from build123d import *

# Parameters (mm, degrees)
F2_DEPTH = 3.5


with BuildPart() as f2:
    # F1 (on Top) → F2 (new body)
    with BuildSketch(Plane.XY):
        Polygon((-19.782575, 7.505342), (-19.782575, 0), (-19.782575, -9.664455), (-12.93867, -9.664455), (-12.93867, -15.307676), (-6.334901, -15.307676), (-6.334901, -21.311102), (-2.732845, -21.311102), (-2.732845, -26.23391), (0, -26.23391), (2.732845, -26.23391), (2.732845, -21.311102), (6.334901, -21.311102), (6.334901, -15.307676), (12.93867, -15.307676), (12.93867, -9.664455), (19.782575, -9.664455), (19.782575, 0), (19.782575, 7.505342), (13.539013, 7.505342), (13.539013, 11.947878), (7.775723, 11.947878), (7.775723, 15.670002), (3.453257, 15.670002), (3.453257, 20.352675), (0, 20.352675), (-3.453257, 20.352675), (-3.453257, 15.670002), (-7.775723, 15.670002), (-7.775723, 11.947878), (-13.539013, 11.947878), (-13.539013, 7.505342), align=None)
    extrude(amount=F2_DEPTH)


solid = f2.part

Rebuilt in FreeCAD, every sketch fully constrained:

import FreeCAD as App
import Part
import Sketcher
from FreeCAD import Vector
Q = App.Units.Quantity


def add_polygon(sketch, points):
    """Adds a closed chain of lines whose ends are joined by coincident constraints."""
    first, n = sketch.GeometryCount, len(points)
    for a, b in zip(points, points[1:] + points[:1]):
        sketch.addGeometry(Part.LineSegment(App.Vector(*a, 0), App.Vector(*b, 0)), False)
    for i in range(n):
        sketch.addConstraint(Sketcher.Constraint("Coincident", first + i, 2, first + (i + 1) % n, 1))

doc = App.newDocument("Part")
body = doc.addObject("PartDesign::Body", "Body")

sketch1 = body.newObject("Sketcher::SketchObject", "Sketch")
sketch1.AttachmentSupport = (doc.getObject("XY_Plane"), [""])
sketch1.MapMode = "FlatFace"
add_polygon(sketch1, [(-19.8, 7.5), (-19.8, -9.7), (-12.9, -9.7), (-12.9, -15.3), (-6.3, -15.3), (-6.3, -21.3), (-2.7, -21.3), (-2.7, -26.2), (2.7, -26.2), (2.7, -21.3), (6.3, -21.3), (6.3, -15.3), (12.9, -15.3), (12.9, -9.7), (19.8, -9.7), (19.8, 7.5), (13.5, 7.5), (13.5, 11.9), (7.8, 11.9), (7.8, 15.7), (3.5, 15.7), (3.5, 20.4), (-3.5, 20.4), (-3.5, 15.7), (-7.8, 15.7), (-7.8, 11.9), (-13.5, 11.9), (-13.5, 7.5)])
sketch1.addConstraint(Sketcher.Constraint("Vertical", 0))
sketch1.addConstraint(Sketcher.Constraint("Horizontal", 1))
sketch1.addConstraint(Sketcher.Constraint("Vertical", 2))
sketch1.addConstraint(Sketcher.Constraint("Horizontal", 3))
sketch1.addConstraint(Sketcher.Constraint("Vertical", 4))
sketch1.addConstraint(Sketcher.Constraint("Horizontal", 5))
sketch1.addConstraint(Sketcher.Constraint("Vertical", 6))
sketch1.addConstraint(Sketcher.Constraint("Horizontal", 7))
sketch1.addConstraint(Sketcher.Constraint("Vertical", 8))
sketch1.addConstraint(Sketcher.Constraint("Horizontal", 9))
sketch1.addConstraint(Sketcher.Constraint("Vertical", 10))
sketch1.addConstraint(Sketcher.Constraint("Horizontal", 11))
sketch1.addConstraint(Sketcher.Constraint("Vertical", 12))
sketch1.addConstraint(Sketcher.Constraint("Horizontal", 13))
sketch1.addConstraint(Sketcher.Constraint("Vertical", 14))
sketch1.addConstraint(Sketcher.Constraint("Horizontal", 15))
sketch1.addConstraint(Sketcher.Constraint("Vertical", 16))
sketch1.addConstraint(Sketcher.Constraint("Horizontal", 17))
sketch1.addConstraint(Sketcher.Constraint("Vertical", 18))
sketch1.addConstraint(Sketcher.Constraint("Horizontal", 19))
sketch1.addConstraint(Sketcher.Constraint("Vertical", 20))
sketch1.addConstraint(Sketcher.Constraint("Horizontal", 21))
sketch1.addConstraint(Sketcher.Constraint("Vertical", 22))
sketch1.addConstraint(Sketcher.Constraint("Horizontal", 23))
sketch1.addConstraint(Sketcher.Constraint("Vertical", 24))
sketch1.addConstraint(Sketcher.Constraint("Horizontal", 25))
sketch1.addConstraint(Sketcher.Constraint("Vertical", 26))
sketch1.addConstraint(Sketcher.Constraint("Horizontal", 27))
sketch1.addConstraint(Sketcher.Constraint("Symmetric", 5, 2, 8, 2, -2))
sketch1.addConstraint(Sketcher.Constraint("Symmetric", 3, 2, 10, 2, -2))
sketch1.addConstraint(Sketcher.Constraint("Symmetric", 1, 2, 12, 2, -2))
sketch1.addConstraint(Sketcher.Constraint("Symmetric", 19, 2, 22, 2, -2))
sketch1.addConstraint(Sketcher.Constraint("Symmetric", 17, 2, 24, 2, -2))
sketch1.addConstraint(Sketcher.Constraint("Symmetric", 15, 2, 26, 2, -2))
sketch1.addConstraint(Sketcher.Constraint("Equal", 1, 13))
sketch1.addConstraint(Sketcher.Constraint("DistanceX", 3, 1, 3, 2, Q("6.603769 mm")))
sketch1.addConstraint(Sketcher.Constraint("DistanceX", 7, 1, 7, 2, Q("5.46569 mm")))
sketch1.addConstraint(Sketcher.Constraint("DistanceX", 17, 2, 17, 1, Q("5.76329 mm")))
sketch1.addConstraint(Sketcher.Constraint("DistanceY", 2, 2, 2, 1, Q("5.643221 mm")))
sketch1.addConstraint(Sketcher.Constraint("DistanceX", 3, 2, -1, 1, Q("6.334901 mm")))
sketch1.addConstraint(Sketcher.Constraint("DistanceX", 1, 1, 1, 2, Q("6.843905 mm")))
sketch1.addConstraint(Sketcher.Constraint("DistanceX", 15, 2, 15, 1, Q("6.243562 mm")))
sketch1.addConstraint(Sketcher.Constraint("DistanceX", 19, 2, 19, 1, Q("4.322466 mm")))
sketch1.addConstraint(Sketcher.Constraint("DistanceY", 0, 2, 0, 1, Q("17.169797 mm")))
sketch1.addConstraint(Sketcher.Constraint("DistanceY", 4, 2, 4, 1, Q("6.003426 mm")))
sketch1.addConstraint(Sketcher.Constraint("DistanceY", 6, 2, 6, 1, Q("4.922808 mm")))
sketch1.addConstraint(Sketcher.Constraint("DistanceY", 16, 1, 16, 2, Q("4.442536 mm")))
sketch1.addConstraint(Sketcher.Constraint("DistanceY", 18, 1, 18, 2, Q("3.722124 mm")))
sketch1.addConstraint(Sketcher.Constraint("DistanceY", 20, 1, 20, 2, Q("4.682673 mm")))
sketch1.addConstraint(Sketcher.Constraint("DistanceY", 6, 2, -1, 1, Q("26.23391 mm")))
pad1 = body.newObject("PartDesign::Pad", "Pad")
pad1.Profile = sketch1
pad1.Length = 3.5

doc.recompute()
